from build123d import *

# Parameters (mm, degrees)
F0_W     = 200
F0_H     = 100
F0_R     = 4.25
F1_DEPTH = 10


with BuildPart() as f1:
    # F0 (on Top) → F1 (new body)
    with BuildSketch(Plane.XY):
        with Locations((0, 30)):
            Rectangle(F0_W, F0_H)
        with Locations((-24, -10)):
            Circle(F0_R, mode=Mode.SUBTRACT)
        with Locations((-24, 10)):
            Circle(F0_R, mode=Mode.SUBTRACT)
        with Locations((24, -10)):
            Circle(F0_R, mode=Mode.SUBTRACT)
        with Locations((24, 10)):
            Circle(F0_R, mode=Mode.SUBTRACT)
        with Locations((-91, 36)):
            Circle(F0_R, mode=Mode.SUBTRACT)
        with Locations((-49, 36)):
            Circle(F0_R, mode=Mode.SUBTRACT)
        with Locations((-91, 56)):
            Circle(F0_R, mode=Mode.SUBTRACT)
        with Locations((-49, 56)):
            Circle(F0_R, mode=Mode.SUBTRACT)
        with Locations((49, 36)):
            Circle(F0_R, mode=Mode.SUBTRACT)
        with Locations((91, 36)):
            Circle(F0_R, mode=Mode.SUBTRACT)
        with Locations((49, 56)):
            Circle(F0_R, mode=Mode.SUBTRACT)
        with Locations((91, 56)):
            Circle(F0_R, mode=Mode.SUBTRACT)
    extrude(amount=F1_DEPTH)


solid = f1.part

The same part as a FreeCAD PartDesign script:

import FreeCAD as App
import Part
import Sketcher


def add_polygon(sketch, points):
    """Adds a closed chain of lines whose ends are joined by coincident constraints."""
    first, n = sketch.GeometryCount, len(points)
    for a, b in zip(points, points[1:] + points[:1]):
        sketch.addGeometry(Part.LineSegment(App.Vector(*a, 0), App.Vector(*b, 0)), False)
    for i in range(n):
        sketch.addConstraint(Sketcher.Constraint("Coincident", first + i, 2, first + (i + 1) % n, 1))

doc = App.newDocument("Part")
body = doc.addObject("PartDesign::Body", "Body")

# Sketch on XY plane
sketch1 = body.newObject("Sketcher::SketchObject", "Sketch")
sketch1.AttachmentSupport = (doc.getObject("XY_Plane"), [""])
sketch1.MapMode = "FlatFace"
add_polygon(sketch1, [(-100, 80), (-100, -20), (100, -20), (100, 80)])  # lines 0-3
sketch1.addGeometry(Part.Circle(App.Vector(-24, -10, 0), App.Vector(0, 0, 1), 4.2), False)  # 4
sketch1.addGeometry(Part.Circle(App.Vector(-24, 10, 0), App.Vector(0, 0, 1), 4.2), False)  # 5
sketch1.addGeometry(Part.Circle(App.Vector(24, -10, 0), App.Vector(0, 0, 1), 4.2), False)  # 6
sketch1.addGeometry(Part.Circle(App.Vector(24, 10, 0), App.Vector(0, 0, 1), 4.2), False)  # 7
sketch1.addGeometry(Part.Circle(App.Vector(-91, 36, 0), App.Vector(0, 0, 1), 4.2), False)  # 8
sketch1.addGeometry(Part.Circle(App.Vector(-49, 36, 0), App.Vector(0, 0, 1), 4.2), False)  # 9
sketch1.addGeometry(Part.Circle(App.Vector(-91, 56, 0), App.Vector(0, 0, 1), 4.2), False)  # 10
sketch1.addGeometry(Part.Circle(App.Vector(-49, 56, 0), App.Vector(0, 0, 1), 4.2), False)  # 11
sketch1.addGeometry(Part.Circle(App.Vector(49, 36, 0), App.Vector(0, 0, 1), 4.2), False)  # 12
sketch1.addGeometry(Part.Circle(App.Vector(91, 36, 0), App.Vector(0, 0, 1), 4.2), False)  # 13
sketch1.addGeometry(Part.Circle(App.Vector(49, 56, 0), App.Vector(0, 0, 1), 4.2), False)  # 14
sketch1.addGeometry(Part.Circle(App.Vector(91, 56, 0), App.Vector(0, 0, 1), 4.2), False)  # 15
sketch1.addConstraint([
    Sketcher.Constraint("Vertical", 0),
    Sketcher.Constraint("Horizontal", 1),
    Sketcher.Constraint("Vertical", 2),
    Sketcher.Constraint("Horizontal", 3),
    Sketcher.Constraint("Equal", 4, 5),
    Sketcher.Constraint("Equal", 5, 6),
    Sketcher.Constraint("Equal", 6, 7),
    Sketcher.Constraint("Equal", 7, 8),
    Sketcher.Constraint("Equal", 8, 9),
    Sketcher.Constraint("Equal", 9, 10),
    Sketcher.Constraint("Equal", 10, 11),
    Sketcher.Constraint("Equal", 11, 12),
    Sketcher.Constraint("Equal", 12, 13),
    Sketcher.Constraint("Equal", 13, 14),
    Sketcher.Constraint("Equal", 14, 15),
    Sketcher.Constraint("Symmetric", 5, 3, 6, 3, -1, 1),
    Sketcher.Constraint("Symmetric", 4, 3, 7, 3, -1, 1),
    Sketcher.Constraint("Symmetric", 4, 3, 6, 3, -2),
    Sketcher.Constraint("Symmetric", 9, 3, 12, 3, -2),
    Sketcher.Constraint("Symmetric", 8, 3, 13, 3, -2),
    Sketcher.Constraint("Symmetric", 11, 3, 14, 3, -2),
    Sketcher.Constraint("Symmetric", 10, 3, 15, 3, -2),
    Sketcher.Constraint("Horizontal", 8, 3, 9, 3),
    Sketcher.Constraint("Horizontal", 10, 3, 11, 3),
    Sketcher.Constraint("Vertical", 8, 3, 10, 3),
    Sketcher.Constraint("Vertical", 9, 3, 11, 3),
    Sketcher.Constraint("Diameter", 4, 8.5),
    Sketcher.Constraint("DistanceX", 1, 1, 1, 2, 200.0),
    Sketcher.Constraint("DistanceY", 0, 2, 0, 1, 100.0),
    Sketcher.Constraint("DistanceX", 4, 3, -1, 1, 24.0),
    Sketcher.Constraint("DistanceY", 4, 3, -1, 1, 10.0),
    Sketcher.Constraint("DistanceX", 8, 3, -1, 1, 91.0),
    Sketcher.Constraint("DistanceY", -1, 1, 8, 3, 36.0),
    Sketcher.Constraint("DistanceX", 9, 3, -1, 1, 49.0),
    Sketcher.Constraint("DistanceY", -1, 1, 10, 3, 56.0),
    Sketcher.Constraint("DistanceX", 0, 2, -1, 1, 100.0),
    Sketcher.Constraint("DistanceY", 0, 2, -1, 1, 20.0),
])
pad1 = body.newObject("PartDesign::Pad", "Pad")
pad1.Profile = sketch1
pad1.Length = 10

doc.recompute()
